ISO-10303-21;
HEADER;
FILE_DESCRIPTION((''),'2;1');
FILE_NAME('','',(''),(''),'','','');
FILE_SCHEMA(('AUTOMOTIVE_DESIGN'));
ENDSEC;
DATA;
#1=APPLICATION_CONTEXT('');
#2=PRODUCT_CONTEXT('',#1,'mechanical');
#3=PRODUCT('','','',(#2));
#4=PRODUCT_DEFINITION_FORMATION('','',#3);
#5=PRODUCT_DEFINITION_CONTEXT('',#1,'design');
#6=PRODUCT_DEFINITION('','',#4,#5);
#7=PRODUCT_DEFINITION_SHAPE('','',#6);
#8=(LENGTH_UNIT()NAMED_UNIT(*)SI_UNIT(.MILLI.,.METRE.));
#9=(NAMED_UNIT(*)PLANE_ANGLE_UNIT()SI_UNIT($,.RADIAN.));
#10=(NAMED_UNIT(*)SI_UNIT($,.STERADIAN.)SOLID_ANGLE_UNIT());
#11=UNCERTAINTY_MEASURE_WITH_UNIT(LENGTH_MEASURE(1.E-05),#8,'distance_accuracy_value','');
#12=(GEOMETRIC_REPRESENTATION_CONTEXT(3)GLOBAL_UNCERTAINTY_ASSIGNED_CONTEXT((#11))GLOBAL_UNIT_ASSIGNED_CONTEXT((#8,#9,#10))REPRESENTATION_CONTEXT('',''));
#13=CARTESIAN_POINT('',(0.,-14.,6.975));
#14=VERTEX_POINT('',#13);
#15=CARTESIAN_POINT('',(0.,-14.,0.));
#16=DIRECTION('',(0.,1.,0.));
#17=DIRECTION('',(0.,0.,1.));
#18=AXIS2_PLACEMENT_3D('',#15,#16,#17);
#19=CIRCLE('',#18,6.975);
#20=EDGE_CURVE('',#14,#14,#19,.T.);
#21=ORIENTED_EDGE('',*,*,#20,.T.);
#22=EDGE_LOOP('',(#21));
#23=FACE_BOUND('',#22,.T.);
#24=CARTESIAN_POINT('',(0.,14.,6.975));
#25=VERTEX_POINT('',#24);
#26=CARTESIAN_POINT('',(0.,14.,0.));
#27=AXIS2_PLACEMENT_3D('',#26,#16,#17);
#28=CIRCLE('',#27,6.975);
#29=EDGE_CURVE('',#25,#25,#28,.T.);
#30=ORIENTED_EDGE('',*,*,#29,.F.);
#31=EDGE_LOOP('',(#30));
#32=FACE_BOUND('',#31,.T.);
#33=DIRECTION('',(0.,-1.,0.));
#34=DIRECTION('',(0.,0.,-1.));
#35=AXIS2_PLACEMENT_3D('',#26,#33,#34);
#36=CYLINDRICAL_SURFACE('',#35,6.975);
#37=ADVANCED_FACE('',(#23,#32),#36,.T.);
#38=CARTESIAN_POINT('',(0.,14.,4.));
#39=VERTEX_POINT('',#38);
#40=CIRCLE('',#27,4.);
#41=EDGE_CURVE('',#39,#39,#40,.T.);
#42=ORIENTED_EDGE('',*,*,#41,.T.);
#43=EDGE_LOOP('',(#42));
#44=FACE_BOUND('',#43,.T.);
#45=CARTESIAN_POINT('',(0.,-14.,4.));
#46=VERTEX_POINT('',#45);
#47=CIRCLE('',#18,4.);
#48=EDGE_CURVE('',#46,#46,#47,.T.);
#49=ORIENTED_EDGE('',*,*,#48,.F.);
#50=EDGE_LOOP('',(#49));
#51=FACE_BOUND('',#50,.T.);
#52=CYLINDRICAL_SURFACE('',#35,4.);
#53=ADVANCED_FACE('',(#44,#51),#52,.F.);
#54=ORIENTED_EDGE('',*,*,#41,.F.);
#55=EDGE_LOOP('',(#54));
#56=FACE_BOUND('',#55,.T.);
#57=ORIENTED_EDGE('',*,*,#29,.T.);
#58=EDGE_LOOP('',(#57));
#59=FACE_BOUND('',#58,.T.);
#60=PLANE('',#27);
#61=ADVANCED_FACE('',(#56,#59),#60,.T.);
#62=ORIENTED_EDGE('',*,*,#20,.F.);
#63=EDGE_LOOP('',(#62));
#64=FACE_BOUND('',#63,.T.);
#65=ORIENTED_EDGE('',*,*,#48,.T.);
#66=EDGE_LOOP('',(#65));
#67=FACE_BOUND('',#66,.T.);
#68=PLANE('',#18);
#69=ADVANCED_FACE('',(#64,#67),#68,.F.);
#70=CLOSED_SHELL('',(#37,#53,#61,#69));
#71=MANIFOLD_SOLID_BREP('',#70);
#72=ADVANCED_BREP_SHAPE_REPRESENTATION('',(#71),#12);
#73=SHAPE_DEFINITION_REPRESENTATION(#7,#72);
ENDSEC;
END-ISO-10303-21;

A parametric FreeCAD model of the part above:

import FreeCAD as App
import Part
import Sketcher

V = App.Vector
Q = App.Units.Quantity

doc = App.newDocument("Part")
body = doc.addObject("PartDesign::Body", "Body")

sketch1 = body.newObject("Sketcher::SketchObject", "Sketch")
sketch1.AttachmentSupport = (doc.getObject("XZ_Plane"), [""])
sketch1.MapMode = "FlatFace"
sketch1.addGeometry([
    Part.Circle(V(0, 0, 0), V(0, 0, 1), 7),
    Part.Circle(V(0, 0, 0), V(0, 0, 1), 4),
], False)
sketch1.addConstraint([
    Sketcher.Constraint("Coincident", 0, 3, -1, 1),
    Sketcher.Constraint("Coincident", 1, 3, -1, 1),
    Sketcher.Constraint("Diameter", 1, Q("8 mm")),
    Sketcher.Constraint("Diameter", 0, Q("13.95 mm")),
])
pad1 = body.newObject("PartDesign::Pad", "Pad")
pad1.Profile = sketch1
pad1.Length = 28
pad1.Midplane = True

doc.recompute()
